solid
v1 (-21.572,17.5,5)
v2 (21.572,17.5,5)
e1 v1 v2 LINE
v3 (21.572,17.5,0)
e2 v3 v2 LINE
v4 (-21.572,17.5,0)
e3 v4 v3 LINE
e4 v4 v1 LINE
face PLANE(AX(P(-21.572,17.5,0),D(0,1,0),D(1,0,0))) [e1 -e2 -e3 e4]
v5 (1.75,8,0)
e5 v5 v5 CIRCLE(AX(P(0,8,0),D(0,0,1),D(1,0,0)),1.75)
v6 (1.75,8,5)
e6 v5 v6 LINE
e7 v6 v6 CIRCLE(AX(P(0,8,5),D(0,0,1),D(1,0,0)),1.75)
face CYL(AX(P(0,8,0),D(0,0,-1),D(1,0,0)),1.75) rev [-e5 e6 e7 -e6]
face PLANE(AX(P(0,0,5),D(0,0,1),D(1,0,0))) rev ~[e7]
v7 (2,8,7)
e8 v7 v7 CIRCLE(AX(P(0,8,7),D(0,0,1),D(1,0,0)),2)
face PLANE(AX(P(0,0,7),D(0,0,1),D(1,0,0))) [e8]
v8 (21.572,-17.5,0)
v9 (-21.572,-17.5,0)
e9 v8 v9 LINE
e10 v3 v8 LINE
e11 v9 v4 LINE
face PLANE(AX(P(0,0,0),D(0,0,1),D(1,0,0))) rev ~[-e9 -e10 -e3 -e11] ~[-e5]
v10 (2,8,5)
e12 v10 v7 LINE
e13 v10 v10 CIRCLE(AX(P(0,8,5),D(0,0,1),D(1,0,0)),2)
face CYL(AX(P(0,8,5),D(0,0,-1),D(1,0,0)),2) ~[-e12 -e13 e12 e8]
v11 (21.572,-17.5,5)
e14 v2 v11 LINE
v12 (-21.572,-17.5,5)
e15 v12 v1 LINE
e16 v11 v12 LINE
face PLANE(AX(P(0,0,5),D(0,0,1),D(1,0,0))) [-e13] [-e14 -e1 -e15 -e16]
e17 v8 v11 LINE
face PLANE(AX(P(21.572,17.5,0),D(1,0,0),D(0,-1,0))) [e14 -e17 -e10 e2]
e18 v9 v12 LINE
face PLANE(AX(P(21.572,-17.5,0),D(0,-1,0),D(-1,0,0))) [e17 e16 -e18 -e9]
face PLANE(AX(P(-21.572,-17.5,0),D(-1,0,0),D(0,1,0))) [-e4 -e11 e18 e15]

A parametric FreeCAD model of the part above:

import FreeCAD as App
import Part
import Sketcher
from FreeCAD import Vector


def add_polygon(sketch, points):
    """Adds a closed chain of lines whose ends are joined by coincident constraints."""
    first, n = sketch.GeometryCount, len(points)
    for a, b in zip(points, points[1:] + points[:1]):
        sketch.addGeometry(Part.LineSegment(App.Vector(*a, 0), App.Vector(*b, 0)), False)
    for i in range(n):
        sketch.addConstraint(Sketcher.Constraint("Coincident", first + i, 2, first + (i + 1) % n, 1))

doc = App.newDocument("Part")
body = doc.addObject("PartDesign::Body", "Body")

sketch1 = body.newObject("Sketcher::SketchObject", "Sketch")
sketch1.AttachmentSupport = (doc.getObject("XY_Plane"), [""])
sketch1.MapMode = "FlatFace"
add_polygon(sketch1, [(-21.6, -17.5), (21.6, -17.5), (21.6, 17.5), (-21.6, 17.5)])
sketch1.addGeometry(Part.Circle(Vector(0, 8, 0), Vector(0, 0, 1), 1.8), False)
sketch1.addConstraint(Sketcher.Constraint("Horizontal", 0))
sketch1.addConstraint(Sketcher.Constraint("Vertical", 1))
sketch1.addConstraint(Sketcher.Constraint("Horizontal", 2))
sketch1.addConstraint(Sketcher.Constraint("Vertical", 3))
sketch1.addConstraint(Sketcher.Constraint("Symmetric", 0, 2, 2, 2, -1, 1))
sketch1.addConstraint(Sketcher.Constraint("PointOnObject", 4, 3, -2))
sketch1.addConstraint(Sketcher.Constraint("Diameter", 4, 3.5))
sketch1.addConstraint(Sketcher.Constraint("DistanceY", 1, 1, 1, 2, 35.0))
sketch1.addConstraint(Sketcher.Constraint("DistanceX", 0, 1, 0, 2, 43.144))
sketch1.addConstraint(Sketcher.Constraint("DistanceY", -1, 1, 4, 3, 8.0))
pad1 = body.newObject("PartDesign::Pad", "Pad")
pad1.Profile = sketch1
pad1.Length = 5

sketch2 = body.newObject("Sketcher::SketchObject", "Sketch001")
sketch2.AttachmentSupport = (doc.getObject("XY_Plane"), [""])
sketch2.MapMode = "FlatFace"
sketch2.AttachmentOffset = App.Placement(Vector(0, 0, 5), App.Rotation())
sketch2.addGeometry(Part.Circle(Vector(0, 8, 0), Vector(0, 0, 1), 2), False)
sketch2.addConstraint(Sketcher.Constraint("PointOnObject", 0, 3, -2))
sketch2.addConstraint(Sketcher.Constraint("Diameter", 0, 4.0))
sketch2.addConstraint(Sketcher.Constraint("DistanceY", -1, 1, 0, 3, 8.0))
pad2 = body.newObject("PartDesign::Pad", "Pad001")
pad2.Profile = sketch2
pad2.Length = 2

doc.recompute()
